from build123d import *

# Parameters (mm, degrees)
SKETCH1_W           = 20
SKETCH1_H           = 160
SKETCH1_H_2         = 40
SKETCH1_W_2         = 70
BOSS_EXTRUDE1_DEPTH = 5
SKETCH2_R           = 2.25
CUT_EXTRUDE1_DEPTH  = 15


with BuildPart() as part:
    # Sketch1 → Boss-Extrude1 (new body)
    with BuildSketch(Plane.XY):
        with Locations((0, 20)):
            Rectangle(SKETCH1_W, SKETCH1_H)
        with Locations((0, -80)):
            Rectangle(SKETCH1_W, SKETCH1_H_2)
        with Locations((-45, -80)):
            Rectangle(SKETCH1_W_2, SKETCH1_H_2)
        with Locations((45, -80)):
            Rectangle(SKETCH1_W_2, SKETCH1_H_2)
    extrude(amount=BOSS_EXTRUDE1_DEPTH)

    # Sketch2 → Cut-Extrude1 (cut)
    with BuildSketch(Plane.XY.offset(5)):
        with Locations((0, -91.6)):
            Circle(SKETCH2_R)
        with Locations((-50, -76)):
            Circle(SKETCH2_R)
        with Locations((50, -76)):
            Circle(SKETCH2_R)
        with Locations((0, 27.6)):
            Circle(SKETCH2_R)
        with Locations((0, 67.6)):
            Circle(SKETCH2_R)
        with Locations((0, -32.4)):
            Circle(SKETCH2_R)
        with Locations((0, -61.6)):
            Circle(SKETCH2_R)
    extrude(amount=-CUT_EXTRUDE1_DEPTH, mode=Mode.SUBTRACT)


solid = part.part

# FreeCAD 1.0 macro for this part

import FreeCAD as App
import Part
import Sketcher

V = App.Vector

doc = App.newDocument("Part")
body = doc.addObject("PartDesign::Body", "Body")

sketch1 = doc.addObject("Sketcher::SketchObject", "Sketch")
body.addObject(sketch1)
sketch1.AttachmentSupport = (doc.XY_Plane, [""])
sketch1.MapMode = "FlatFace"
sketch1.addGeometry(Part.LineSegment(V(-10, 100, 0), V(-10, -60, 0)), False)
sketch1.addGeometry(Part.LineSegment(V(-10, -60, 0), V(-80, -60, 0)), False)
sketch1.addGeometry(Part.LineSegment(V(-80, -60, 0), V(-80, -100, 0)), False)
sketch1.addGeometry(Part.LineSegment(V(-80, -100, 0), V(80, -100, 0)), False)
sketch1.addGeometry(Part.LineSegment(V(80, -100, 0), V(80, -60, 0)), False)
sketch1.addGeometry(Part.LineSegment(V(80, -60, 0), V(10, -60, 0)), False)
sketch1.addGeometry(Part.LineSegment(V(10, -60, 0), V(10, 100, 0)), False)
sketch1.addGeometry(Part.LineSegment(V(10, 100, 0), V(-10, 100, 0)), False)
sketch1.addConstraint(Sketcher.Constraint("Coincident", 0, 2, 1, 1))
sketch1.addConstraint(Sketcher.Constraint("Coincident", 1, 2, 2, 1))
sketch1.addConstraint(Sketcher.Constraint("Coincident", 2, 2, 3, 1))
sketch1.addConstraint(Sketcher.Constraint("Coincident", 3, 2, 4, 1))
sketch1.addConstraint(Sketcher.Constraint("Coincident", 4, 2, 5, 1))
sketch1.addConstraint(Sketcher.Constraint("Coincident", 5, 2, 6, 1))
sketch1.addConstraint(Sketcher.Constraint("Coincident", 6, 2, 7, 1))
sketch1.addConstraint(Sketcher.Constraint("Coincident", 7, 2, 0, 1))
sketch1.addConstraint(Sketcher.Constraint("Vertical", 0))
sketch1.addConstraint(Sketcher.Constraint("Horizontal", 1))
sketch1.addConstraint(Sketcher.Constraint("Vertical", 2))
sketch1.addConstraint(Sketcher.Constraint("Horizontal", 3))
sketch1.addConstraint(Sketcher.Constraint("Vertical", 4))
sketch1.addConstraint(Sketcher.Constraint("Horizontal", 5))
sketch1.addConstraint(Sketcher.Constraint("Vertical", 6))
sketch1.addConstraint(Sketcher.Constraint("Horizontal", 7))
sketch1.addConstraint(Sketcher.Constraint("Symmetric", 1, 2, 4, 2, -2))
sketch1.addConstraint(Sketcher.Constraint("Equal", 1, 5))
sketch1.addConstraint(Sketcher.Constraint("Equal", 3, 0))
sketch1.addConstraint(Sketcher.Constraint("DistanceX", 1, 2, 1, 1, 70.0))
sketch1.addConstraint(Sketcher.Constraint("DistanceX", 3, 1, 3, 2, 160.0))
sketch1.addConstraint(Sketcher.Constraint("DistanceY", 2, 2, 2, 1, 40.0))
sketch1.addConstraint(Sketcher.Constraint("DistanceY", 0, 2, -1, 1, 60.0))
pad1 = doc.addObject("PartDesign::Pad", "Pad")
body.addObject(pad1)
pad1.Profile = sketch1
pad1.Length = 5

sketch2 = doc.addObject("Sketcher::SketchObject", "Sketch001")
body.addObject(sketch2)
sketch2.AttachmentSupport = (doc.XY_Plane, [""])
sketch2.MapMode = "FlatFace"
sketch2.AttachmentOffset = App.Placement(V(0, 0, 5), App.Rotation())
sketch2.addGeometry(Part.Circle(V(0, -91.6, 0), V(0, 0, 1), 2.2), False)
sketch2.addGeometry(Part.Circle(V(-50, -76, 0), V(0, 0, 1), 2.2), False)
sketch2.addGeometry(Part.Circle(V(50, -76, 0), V(0, 0, 1), 2.2), False)
sketch2.addGeometry(Part.Circle(V(0, 27.6, 0), V(0, 0, 1), 2.2), False)
sketch2.addGeometry(Part.Circle(V(0, 67.6, 0), V(0, 0, 1), 2.2), False)
sketch2.addGeometry(Part.Circle(V(0, -32.4, 0), V(0, 0, 1), 2.2), False)
sketch2.addGeometry(Part.Circle(V(0, -61.6, 0), V(0, 0, 1), 2.2), False)
sketch2.addConstraint(Sketcher.Constraint("Equal", 0, 1))
sketch2.addConstraint(Sketcher.Constraint("Equal", 1, 2))
sketch2.addConstraint(Sketcher.Constraint("Equal", 2, 3))
sketch2.addConstraint(Sketcher.Constraint("Equal", 3, 4))
sketch2.addConstraint(Sketcher.Constraint("Equal", 4, 5))
sketch2.addConstraint(Sketcher.Constraint("Equal", 5, 6))
sketch2.addConstraint(Sketcher.Constraint("Symmetric", 1, 3, 2, 3, -2))
sketch2.addConstraint(Sketcher.Constraint("PointOnObject", 0, 3, -2))
sketch2.addConstraint(Sketcher.Constraint("PointOnObject", 3, 3, -2))
sketch2.addConstraint(Sketcher.Constraint("PointOnObject", 4, 3, -2))
sketch2.addConstraint(Sketcher.Constraint("PointOnObject", 5, 3, -2))
sketch2.addConstraint(Sketcher.Constraint("PointOnObject", 6, 3, -2))
sketch2.addConstraint(Sketcher.Constraint("Diameter", 0, 4.5))
sketch2.addConstraint(Sketcher.Constraint("DistanceX", 1, 3, -1, 1, 50.0))
sketch2.addConstraint(Sketcher.Constraint("DistanceY", 1, 3, -1, 1, 76.0))
sketch2.addConstraint(Sketcher.Constraint("DistanceY", 3, 3, 4, 3, 40.0))
sketch2.addConstraint(Sketcher.Constraint("DistanceY", 5, 3, 3, 3, 60.0))
sketch2.addConstraint(Sketcher.Constraint("DistanceY", 0, 3, 6, 3, 30.0))
sketch2.addConstraint(Sketcher.Constraint("DistanceY", 0, 3, -1, 1, 91.6))
sketch2.addConstraint(Sketcher.Constraint("DistanceY", -1, 1, 3, 3, 27.6))
pocket1 = doc.addObject("PartDesign::Pocket", "Pocket")
body.addObject(pocket1)
pocket1.Profile = sketch2
pocket1.Length = 15

doc.recompute()
